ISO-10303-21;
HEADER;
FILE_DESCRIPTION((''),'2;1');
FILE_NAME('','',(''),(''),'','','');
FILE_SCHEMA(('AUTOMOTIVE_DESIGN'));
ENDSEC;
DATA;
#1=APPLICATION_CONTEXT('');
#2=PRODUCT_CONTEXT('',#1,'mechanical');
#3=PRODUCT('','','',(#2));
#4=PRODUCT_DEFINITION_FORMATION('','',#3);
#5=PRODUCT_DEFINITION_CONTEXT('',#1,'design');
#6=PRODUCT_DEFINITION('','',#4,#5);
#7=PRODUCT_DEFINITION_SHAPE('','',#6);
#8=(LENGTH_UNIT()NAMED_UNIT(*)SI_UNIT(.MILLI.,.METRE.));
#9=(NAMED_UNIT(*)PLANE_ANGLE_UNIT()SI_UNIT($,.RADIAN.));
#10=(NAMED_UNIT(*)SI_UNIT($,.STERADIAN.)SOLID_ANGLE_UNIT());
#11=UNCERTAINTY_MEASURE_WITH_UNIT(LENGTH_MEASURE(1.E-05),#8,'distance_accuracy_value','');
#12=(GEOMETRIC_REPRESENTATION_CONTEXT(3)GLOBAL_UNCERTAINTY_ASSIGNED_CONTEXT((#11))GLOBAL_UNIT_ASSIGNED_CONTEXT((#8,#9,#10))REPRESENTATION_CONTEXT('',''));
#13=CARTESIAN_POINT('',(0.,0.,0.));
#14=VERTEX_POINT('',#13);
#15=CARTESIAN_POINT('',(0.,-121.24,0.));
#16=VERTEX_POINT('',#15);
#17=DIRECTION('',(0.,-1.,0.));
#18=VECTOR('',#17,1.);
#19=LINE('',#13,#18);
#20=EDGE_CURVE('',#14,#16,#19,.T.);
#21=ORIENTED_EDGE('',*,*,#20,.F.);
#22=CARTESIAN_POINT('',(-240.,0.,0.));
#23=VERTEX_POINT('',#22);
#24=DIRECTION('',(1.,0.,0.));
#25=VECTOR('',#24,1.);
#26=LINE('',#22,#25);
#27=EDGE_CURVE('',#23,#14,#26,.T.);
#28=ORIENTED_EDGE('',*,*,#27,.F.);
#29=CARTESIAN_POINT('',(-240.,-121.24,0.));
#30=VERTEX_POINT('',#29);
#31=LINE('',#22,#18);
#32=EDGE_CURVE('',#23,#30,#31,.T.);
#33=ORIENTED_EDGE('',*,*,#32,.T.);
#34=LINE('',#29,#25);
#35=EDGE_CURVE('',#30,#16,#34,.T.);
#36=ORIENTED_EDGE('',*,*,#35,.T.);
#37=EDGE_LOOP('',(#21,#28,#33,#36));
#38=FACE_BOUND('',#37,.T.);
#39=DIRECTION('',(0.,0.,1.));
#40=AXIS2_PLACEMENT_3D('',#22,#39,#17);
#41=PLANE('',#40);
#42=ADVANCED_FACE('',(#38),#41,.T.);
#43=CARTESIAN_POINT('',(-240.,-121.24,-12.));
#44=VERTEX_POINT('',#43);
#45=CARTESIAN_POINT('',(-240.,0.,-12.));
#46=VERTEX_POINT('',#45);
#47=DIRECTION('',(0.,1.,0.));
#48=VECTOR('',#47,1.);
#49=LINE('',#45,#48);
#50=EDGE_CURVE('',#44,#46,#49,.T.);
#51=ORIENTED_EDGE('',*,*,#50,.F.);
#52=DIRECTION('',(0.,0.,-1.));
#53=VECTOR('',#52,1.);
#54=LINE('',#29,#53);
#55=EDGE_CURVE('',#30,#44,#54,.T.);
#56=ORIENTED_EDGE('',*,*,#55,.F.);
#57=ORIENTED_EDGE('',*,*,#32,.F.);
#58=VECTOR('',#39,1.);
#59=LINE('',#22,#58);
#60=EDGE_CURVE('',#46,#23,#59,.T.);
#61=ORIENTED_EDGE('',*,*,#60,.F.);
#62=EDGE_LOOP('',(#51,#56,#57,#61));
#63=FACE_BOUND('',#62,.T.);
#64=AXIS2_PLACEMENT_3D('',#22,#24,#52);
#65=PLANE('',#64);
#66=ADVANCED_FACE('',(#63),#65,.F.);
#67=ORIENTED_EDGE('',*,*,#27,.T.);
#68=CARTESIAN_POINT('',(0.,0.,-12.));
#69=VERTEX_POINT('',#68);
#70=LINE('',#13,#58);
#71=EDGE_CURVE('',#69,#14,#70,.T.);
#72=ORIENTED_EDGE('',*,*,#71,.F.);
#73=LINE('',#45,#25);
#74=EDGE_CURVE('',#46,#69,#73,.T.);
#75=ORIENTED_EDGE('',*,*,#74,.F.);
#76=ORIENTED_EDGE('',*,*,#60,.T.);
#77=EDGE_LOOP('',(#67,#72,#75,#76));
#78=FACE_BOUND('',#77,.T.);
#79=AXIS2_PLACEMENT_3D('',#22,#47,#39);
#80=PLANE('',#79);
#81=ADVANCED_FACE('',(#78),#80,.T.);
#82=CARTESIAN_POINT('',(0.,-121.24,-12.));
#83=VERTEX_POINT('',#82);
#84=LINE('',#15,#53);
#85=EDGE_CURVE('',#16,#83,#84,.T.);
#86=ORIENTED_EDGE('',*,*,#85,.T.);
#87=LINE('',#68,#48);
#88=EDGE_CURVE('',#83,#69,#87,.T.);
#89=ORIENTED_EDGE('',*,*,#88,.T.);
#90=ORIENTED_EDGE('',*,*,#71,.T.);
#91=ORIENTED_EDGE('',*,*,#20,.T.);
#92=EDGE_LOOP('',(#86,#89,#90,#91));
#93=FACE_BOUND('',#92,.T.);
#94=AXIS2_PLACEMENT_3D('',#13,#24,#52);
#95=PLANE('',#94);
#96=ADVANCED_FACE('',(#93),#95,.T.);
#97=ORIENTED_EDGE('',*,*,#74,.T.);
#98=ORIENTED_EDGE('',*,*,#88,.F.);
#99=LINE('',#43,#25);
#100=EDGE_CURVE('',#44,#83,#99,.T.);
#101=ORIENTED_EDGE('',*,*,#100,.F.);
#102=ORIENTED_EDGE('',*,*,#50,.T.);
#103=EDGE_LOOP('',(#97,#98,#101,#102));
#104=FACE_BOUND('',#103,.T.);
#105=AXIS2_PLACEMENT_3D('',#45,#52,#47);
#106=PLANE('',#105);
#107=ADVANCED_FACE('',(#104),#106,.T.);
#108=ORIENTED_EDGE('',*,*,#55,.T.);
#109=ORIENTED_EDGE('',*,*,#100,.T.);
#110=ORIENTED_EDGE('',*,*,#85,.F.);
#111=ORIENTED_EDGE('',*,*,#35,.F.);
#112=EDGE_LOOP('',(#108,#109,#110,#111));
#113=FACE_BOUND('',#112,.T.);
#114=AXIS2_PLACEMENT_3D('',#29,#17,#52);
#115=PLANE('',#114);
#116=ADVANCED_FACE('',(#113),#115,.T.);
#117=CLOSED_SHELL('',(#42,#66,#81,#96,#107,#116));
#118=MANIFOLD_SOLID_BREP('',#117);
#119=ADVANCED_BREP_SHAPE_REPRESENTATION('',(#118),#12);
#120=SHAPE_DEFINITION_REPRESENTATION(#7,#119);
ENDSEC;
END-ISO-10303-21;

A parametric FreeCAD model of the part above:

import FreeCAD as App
import Part
import Sketcher

V = App.Vector
Q = App.Units.Quantity

doc = App.newDocument("Part")
body = doc.addObject("PartDesign::Body", "Body")

# Sketch on YZ plane
sketch1 = doc.addObject("Sketcher::SketchObject", "Sketch")
body.addObject(sketch1)
sketch1.AttachmentSupport = (doc.YZ_Plane, [""])
sketch1.MapMode = "FlatFace"
sketch1.addGeometry([
    Part.LineSegment(V(0, 0, 0), V(-121.24, 0, 0)),
    Part.LineSegment(V(-121.24, 0, 0), V(-121.24, -12, 0)),
    Part.LineSegment(V(-121.24, -12, 0), V(0, -12, 0)),
    Part.LineSegment(V(0, -12, 0), V(0, 0, 0)),
], False)
sketch1.addConstraint([
    Sketcher.Constraint("Coincident", 0, 2, 1, 1),
    Sketcher.Constraint("Coincident", 1, 2, 2, 1),
    Sketcher.Constraint("Coincident", 2, 2, 3, 1),
    Sketcher.Constraint("Coincident", 3, 2, 0, 1),
    Sketcher.Constraint("Horizontal", 0),
    Sketcher.Constraint("Vertical", 1),
    Sketcher.Constraint("Horizontal", 2),
    Sketcher.Constraint("Vertical", 3),
    Sketcher.Constraint("Coincident", 3, 2, -1, 1),
    Sketcher.Constraint("DistanceY", 1, 2, 1, 1, Q("12 mm")),
    Sketcher.Constraint("DistanceX", 0, 2, 0, 1, Q("121.24 mm")),
])
pad1 = doc.addObject("PartDesign::Pad", "Pad")
body.addObject(pad1)
pad1.Profile = sketch1
pad1.Length = 240
pad1.Reversed = True

doc.recompute()
